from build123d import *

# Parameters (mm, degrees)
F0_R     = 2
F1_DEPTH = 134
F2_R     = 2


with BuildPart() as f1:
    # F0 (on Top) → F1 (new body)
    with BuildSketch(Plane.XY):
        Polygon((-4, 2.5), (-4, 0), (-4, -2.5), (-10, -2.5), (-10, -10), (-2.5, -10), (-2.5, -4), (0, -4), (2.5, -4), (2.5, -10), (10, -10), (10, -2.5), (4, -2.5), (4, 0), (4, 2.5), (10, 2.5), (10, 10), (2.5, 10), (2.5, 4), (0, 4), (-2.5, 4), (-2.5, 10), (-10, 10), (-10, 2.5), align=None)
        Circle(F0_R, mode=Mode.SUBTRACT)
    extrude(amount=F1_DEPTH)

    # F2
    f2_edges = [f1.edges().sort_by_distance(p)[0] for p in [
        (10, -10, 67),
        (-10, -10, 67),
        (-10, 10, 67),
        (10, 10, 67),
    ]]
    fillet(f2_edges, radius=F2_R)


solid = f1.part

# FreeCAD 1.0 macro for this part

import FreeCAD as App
import Part
import Sketcher
Q = App.Units.Quantity


def edges_at(feature, points):
    """Names of the edges that pass closest to the given points."""
    edges = feature.Shape.Edges
    near = lambda p: min(range(len(edges)), key=lambda i: edges[i].distToShape(Part.Vertex(*p))[0])
    return sorted({f"Edge{near(p) + 1}" for p in points})

doc = App.newDocument("Part")
body = doc.addObject("PartDesign::Body", "Body")

sketch1 = doc.addObject("Sketcher::SketchObject", "Sketch")
body.addObject(sketch1)
sketch1.AttachmentSupport = (doc.XY_Plane, [""])
sketch1.MapMode = "FlatFace"
sketch1.addGeometry([
    Part.LineSegment(App.Vector(-4, 2.5, 0), App.Vector(-4, -2.5, 0)),
    Part.LineSegment(App.Vector(-4, -2.5, 0), App.Vector(-10, -2.5, 0)),
    Part.LineSegment(App.Vector(-10, -2.5, 0), App.Vector(-10, -10, 0)),
    Part.LineSegment(App.Vector(-10, -10, 0), App.Vector(-2.5, -10, 0)),
    Part.LineSegment(App.Vector(-2.5, -10, 0), App.Vector(-2.5, -4, 0)),
    Part.LineSegment(App.Vector(-2.5, -4, 0), App.Vector(2.5, -4, 0)),
    Part.LineSegment(App.Vector(2.5, -4, 0), App.Vector(2.5, -10, 0)),
    Part.LineSegment(App.Vector(2.5, -10, 0), App.Vector(10, -10, 0)),
    Part.LineSegment(App.Vector(10, -10, 0), App.Vector(10, -2.5, 0)),
    Part.LineSegment(App.Vector(10, -2.5, 0), App.Vector(4, -2.5, 0)),
    Part.LineSegment(App.Vector(4, -2.5, 0), App.Vector(4, 2.5, 0)),
    Part.LineSegment(App.Vector(4, 2.5, 0), App.Vector(10, 2.5, 0)),
    Part.LineSegment(App.Vector(10, 2.5, 0), App.Vector(10, 10, 0)),
    Part.LineSegment(App.Vector(10, 10, 0), App.Vector(2.5, 10, 0)),
    Part.LineSegment(App.Vector(2.5, 10, 0), App.Vector(2.5, 4, 0)),
    Part.LineSegment(App.Vector(2.5, 4, 0), App.Vector(-2.5, 4, 0)),
    Part.LineSegment(App.Vector(-2.5, 4, 0), App.Vector(-2.5, 10, 0)),
    Part.LineSegment(App.Vector(-2.5, 10, 0), App.Vector(-10, 10, 0)),
    Part.LineSegment(App.Vector(-10, 10, 0), App.Vector(-10, 2.5, 0)),
    Part.LineSegment(App.Vector(-10, 2.5, 0), App.Vector(-4, 2.5, 0)),
    Part.Circle(App.Vector(0, 0, 0), App.Vector(0, 0, 1), 2),
], False)
sketch1.addConstraint([
    Sketcher.Constraint("Coincident", 0, 2, 1, 1),
    Sketcher.Constraint("Coincident", 1, 2, 2, 1),
    Sketcher.Constraint("Coincident", 2, 2, 3, 1),
    Sketcher.Constraint("Coincident", 3, 2, 4, 1),
    Sketcher.Constraint("Coincident", 4, 2, 5, 1),
    Sketcher.Constraint("Coincident", 5, 2, 6, 1),
    Sketcher.Constraint("Coincident", 6, 2, 7, 1),
    Sketcher.Constraint("Coincident", 7, 2, 8, 1),
    Sketcher.Constraint("Coincident", 8, 2, 9, 1),
    Sketcher.Constraint("Coincident", 9, 2, 10, 1),
    Sketcher.Constraint("Coincident", 10, 2, 11, 1),
    Sketcher.Constraint("Coincident", 11, 2, 12, 1),
    Sketcher.Constraint("Coincident", 12, 2, 13, 1),
    Sketcher.Constraint("Coincident", 13, 2, 14, 1),
    Sketcher.Constraint("Coincident", 14, 2, 15, 1),
    Sketcher.Constraint("Coincident", 15, 2, 16, 1),
    Sketcher.Constraint("Coincident", 16, 2, 17, 1),
    Sketcher.Constraint("Coincident", 17, 2, 18, 1),
    Sketcher.Constraint("Coincident", 18, 2, 19, 1),
    Sketcher.Constraint("Coincident", 19, 2, 0, 1),
    Sketcher.Constraint("Vertical", 0),
    Sketcher.Constraint("Horizontal", 1),
    Sketcher.Constraint("Vertical", 2),
    Sketcher.Constraint("Horizontal", 3),
    Sketcher.Constraint("Vertical", 4),
    Sketcher.Constraint("Horizontal", 5),
    Sketcher.Constraint("Vertical", 6),
    Sketcher.Constraint("Horizontal", 7),
    Sketcher.Constraint("Vertical", 8),
    Sketcher.Constraint("Horizontal", 9),
    Sketcher.Constraint("Vertical", 10),
    Sketcher.Constraint("Horizontal", 11),
    Sketcher.Constraint("Vertical", 12),
    Sketcher.Constraint("Horizontal", 13),
    Sketcher.Constraint("Vertical", 14),
    Sketcher.Constraint("Horizontal", 15),
    Sketcher.Constraint("Vertical", 16),
    Sketcher.Constraint("Horizontal", 17),
    Sketcher.Constraint("Vertical", 18),
    Sketcher.Constraint("Horizontal", 19),
    Sketcher.Constraint("Coincident", 20, 3, -1, 1),
    Sketcher.Constraint("Symmetric", 0, 2, 10, 2, -1, 1),
    Sketcher.Constraint("Symmetric", 2, 2, 12, 2, -1, 1),
    Sketcher.Constraint("Symmetric", 4, 2, 14, 2, -1, 1),
    Sketcher.Constraint("Symmetric", 6, 2, 16, 2, -1, 1),
    Sketcher.Constraint("Symmetric", 8, 2, 18, 2, -1, 1),
    Sketcher.Constraint("Symmetric", 3, 2, 6, 2, -2),
    Sketcher.Constraint("Symmetric", 1, 2, 8, 2, -2),
    Sketcher.Constraint("Equal", 15, 0),
    Sketcher.Constraint("Equal", 17, 2),
    Sketcher.Constraint("Equal", 19, 4),
    Sketcher.Constraint("Diameter", 20, Q("4 mm")),
    Sketcher.Constraint("DistanceX", 1, 2, 1, 1, Q("6 mm")),
    Sketcher.Constraint("DistanceX", 5, 1, 5, 2, Q("5 mm")),
    Sketcher.Constraint("DistanceX", 3, 1, 3, 2, Q("7.5 mm")),
])
pad1 = doc.addObject("PartDesign::Pad", "Pad")
body.addObject(pad1)
pad1.Profile = sketch1
pad1.Length = 134
doc.recompute()

fillet = doc.addObject("PartDesign::Fillet", "Fillet")
body.addObject(fillet)
fillet.Base = (pad1, edges_at(pad1, [
    (10, -10, 67),
    (-10, -10, 67),
    (-10, 10, 67),
    (10, 10, 67),
]))
fillet.Radius = 2

doc.recompute()
